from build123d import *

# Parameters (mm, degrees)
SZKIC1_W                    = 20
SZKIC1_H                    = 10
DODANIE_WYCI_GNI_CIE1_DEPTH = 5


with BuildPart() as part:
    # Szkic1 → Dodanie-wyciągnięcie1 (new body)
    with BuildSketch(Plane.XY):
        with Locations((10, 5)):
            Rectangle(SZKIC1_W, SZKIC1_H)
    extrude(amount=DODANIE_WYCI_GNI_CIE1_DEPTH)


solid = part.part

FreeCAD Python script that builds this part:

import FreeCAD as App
import Part
import Sketcher

V = App.Vector
Q = App.Units.Quantity


def add_polygon(sketch, points):
    """Adds a closed chain of lines whose ends are joined by coincident constraints."""
    first, n = sketch.GeometryCount, len(points)
    for a, b in zip(points, points[1:] + points[:1]):
        sketch.addGeometry(Part.LineSegment(App.Vector(*a, 0), App.Vector(*b, 0)), False)
    for i in range(n):
        sketch.addConstraint(Sketcher.Constraint("Coincident", first + i, 2, first + (i + 1) % n, 1))

doc = App.newDocument("Part")
params = doc.addObject("Spreadsheet::Sheet", "Params")
for row, (alias, value) in enumerate([
    ("sketch1_width", "20 mm"),
    ("sketch1_height", "10 mm"),
    ("pad1_length", "5 mm"),
], start=1):
    params.set(f"A{row}", alias)
    params.set(f"B{row}", "=" + value)
    params.setAlias(f"B{row}", alias)

body = doc.addObject("PartDesign::Body", "Body")

# Sketch on XY plane
sketch1 = doc.addObject("Sketcher::SketchObject", "Sketch")
body.addObject(sketch1)
sketch1.AttachmentSupport = (doc.XY_Plane, [""])
sketch1.MapMode = "FlatFace"
add_polygon(sketch1, [(0, 10), (0, 0), (20, 0), (20, 10)])  # lines 0-3
sketch1.addConstraint(Sketcher.Constraint("Vertical", 0))
sketch1.addConstraint(Sketcher.Constraint("Horizontal", 1))
sketch1.addConstraint(Sketcher.Constraint("Vertical", 2))
sketch1.addConstraint(Sketcher.Constraint("Horizontal", 3))
sketch1.addConstraint(Sketcher.Constraint("Coincident", 0, 2, -1, 1))
sketch1.addConstraint(Sketcher.Constraint("DistanceX", 1, 1, 1, 2, Q("20 mm")))
sketch1.addConstraint(Sketcher.Constraint("DistanceY", 0, 2, 0, 1, Q("10 mm")))
sketch1.setExpression("Constraints[9]", "Params.sketch1_width")
sketch1.setExpression("Constraints[10]", "Params.sketch1_height")
pad1 = doc.addObject("PartDesign::Pad", "Pad")
body.addObject(pad1)
pad1.Profile = sketch1
pad1.setExpression("Length", "Params.pad1_length")

doc.recompute()
